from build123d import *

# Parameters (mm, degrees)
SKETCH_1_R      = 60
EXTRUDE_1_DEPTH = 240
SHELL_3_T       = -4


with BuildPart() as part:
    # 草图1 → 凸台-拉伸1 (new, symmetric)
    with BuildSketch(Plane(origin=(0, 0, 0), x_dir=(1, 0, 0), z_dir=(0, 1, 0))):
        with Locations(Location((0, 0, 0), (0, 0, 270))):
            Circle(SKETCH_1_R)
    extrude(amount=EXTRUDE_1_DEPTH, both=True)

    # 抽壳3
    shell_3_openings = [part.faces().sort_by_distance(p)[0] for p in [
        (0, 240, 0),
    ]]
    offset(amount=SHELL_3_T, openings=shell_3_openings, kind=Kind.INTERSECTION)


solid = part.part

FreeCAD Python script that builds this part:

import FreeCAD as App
import Part
import Sketcher

V = App.Vector
Q = App.Units.Quantity


def faces_at(feature, points):
    """Names of the faces that lie closest to the given points."""
    faces = feature.Shape.Faces
    near = lambda p: min(range(len(faces)), key=lambda i: faces[i].distToShape(Part.Vertex(*p))[0])
    return sorted({f"Face{near(p) + 1}" for p in points})

doc = App.newDocument("Part")
body = doc.addObject("PartDesign::Body", "Body")

sketch1 = body.newObject("Sketcher::SketchObject", "Sketch")
sketch1.AttachmentSupport = (doc.getObject("XZ_Plane"), [""])
sketch1.MapMode = "FlatFace"
sketch1.addGeometry(Part.Circle(V(0, 0, 0), V(0, 0, 1), 60), False)
sketch1.addConstraint([
    Sketcher.Constraint("Coincident", 0, 3, -1, 1),
    Sketcher.Constraint("Diameter", 0, Q("120 mm")),
])
pad1 = body.newObject("PartDesign::Pad", "Pad")
pad1.Profile = sketch1
pad1.Length = 480
pad1.Midplane = True
doc.recompute()

thickness = body.newObject("PartDesign::Thickness", "Thickness")
thickness.Base = (pad1, faces_at(pad1, [(0, 240, 0)]))
thickness.Value = 4
thickness.Reversed = True
thickness.Join = "Intersection"

doc.recompute()
